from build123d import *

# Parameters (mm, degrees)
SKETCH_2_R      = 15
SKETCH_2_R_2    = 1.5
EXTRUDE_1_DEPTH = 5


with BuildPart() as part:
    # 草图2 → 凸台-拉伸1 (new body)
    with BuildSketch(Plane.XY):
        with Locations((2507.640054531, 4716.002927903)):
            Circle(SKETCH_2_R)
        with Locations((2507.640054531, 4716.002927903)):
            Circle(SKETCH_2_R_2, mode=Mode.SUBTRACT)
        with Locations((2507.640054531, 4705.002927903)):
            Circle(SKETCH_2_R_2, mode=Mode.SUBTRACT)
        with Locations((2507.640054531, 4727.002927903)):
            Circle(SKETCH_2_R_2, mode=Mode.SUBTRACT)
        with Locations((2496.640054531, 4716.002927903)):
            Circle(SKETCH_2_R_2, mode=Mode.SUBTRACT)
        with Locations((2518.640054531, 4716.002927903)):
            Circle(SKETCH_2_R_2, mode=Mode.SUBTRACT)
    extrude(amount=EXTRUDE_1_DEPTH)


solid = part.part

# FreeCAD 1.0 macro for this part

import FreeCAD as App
import Part
import Sketcher

V = App.Vector

doc = App.newDocument("Part")
params = doc.addObject("Spreadsheet::Sheet", "Params")
for row, (alias, value) in enumerate([
    ("sketch1_diameter", "30 mm"),
    ("sketch1_diameter2", "3 mm"),
    ("pad1_length", "5 mm"),
], start=1):
    params.set(f"A{row}", alias)
    params.set(f"B{row}", "=" + value)
    params.setAlias(f"B{row}", alias)

body = doc.addObject("PartDesign::Body", "Body")

# Sketch on XY plane
sketch1 = doc.addObject("Sketcher::SketchObject", "Sketch")
body.addObject(sketch1)
sketch1.AttachmentSupport = (doc.XY_Plane, [""])
sketch1.MapMode = "FlatFace"
sketch1.addGeometry([
    Part.Circle(V(2507.6, 4716, 0), V(0, 0, 1), 15),  # 0
    Part.Circle(V(2507.6, 4705, 0), V(0, 0, 1), 1.5),  # 1
    Part.Circle(V(2496.6, 4716, 0), V(0, 0, 1), 1.5),  # 2
    Part.Circle(V(2507.6, 4716, 0), V(0, 0, 1), 1.5),  # 3
    Part.Circle(V(2518.6, 4716, 0), V(0, 0, 1), 1.5),  # 4
    Part.Circle(V(2507.6, 4727, 0), V(0, 0, 1), 1.5),  # 5
], False)
sketch1.addConstraint([
    Sketcher.Constraint("Coincident", 3, 3, 0, 3),
    Sketcher.Constraint("Equal", 1, 2),
    Sketcher.Constraint("Equal", 2, 3),
    Sketcher.Constraint("Equal", 3, 4),
    Sketcher.Constraint("Equal", 4, 5),
    Sketcher.Constraint("Horizontal", 0, 3, 2, 3),
    Sketcher.Constraint("Horizontal", 3, 3, 4, 3),
    Sketcher.Constraint("Vertical", 0, 3, 1, 3),
    Sketcher.Constraint("Vertical", 3, 3, 5, 3),
    Sketcher.Constraint("Diameter", 0, 30.0),
    Sketcher.Constraint("Diameter", 1, 3.0),
    Sketcher.Constraint("DistanceY", 1, 3, 0, 3, 11.0),
    Sketcher.Constraint("DistanceX", 2, 3, 0, 3, 11.0),
    Sketcher.Constraint("DistanceX", 0, 3, 4, 3, 11.0),
    Sketcher.Constraint("DistanceY", 0, 3, 5, 3, 11.0),
    Sketcher.Constraint("DistanceX", -1, 1, 0, 3, 2507.640055),
    Sketcher.Constraint("DistanceY", -1, 1, 0, 3, 4716.002928),
])
sketch1.setExpression("Constraints[9]", "Params.sketch1_diameter")
sketch1.setExpression("Constraints[10]", "Params.sketch1_diameter2")
pad1 = doc.addObject("PartDesign::Pad", "Pad")
body.addObject(pad1)
pad1.Profile = sketch1
pad1.setExpression("Length", "Params.pad1_length")

doc.recompute()
